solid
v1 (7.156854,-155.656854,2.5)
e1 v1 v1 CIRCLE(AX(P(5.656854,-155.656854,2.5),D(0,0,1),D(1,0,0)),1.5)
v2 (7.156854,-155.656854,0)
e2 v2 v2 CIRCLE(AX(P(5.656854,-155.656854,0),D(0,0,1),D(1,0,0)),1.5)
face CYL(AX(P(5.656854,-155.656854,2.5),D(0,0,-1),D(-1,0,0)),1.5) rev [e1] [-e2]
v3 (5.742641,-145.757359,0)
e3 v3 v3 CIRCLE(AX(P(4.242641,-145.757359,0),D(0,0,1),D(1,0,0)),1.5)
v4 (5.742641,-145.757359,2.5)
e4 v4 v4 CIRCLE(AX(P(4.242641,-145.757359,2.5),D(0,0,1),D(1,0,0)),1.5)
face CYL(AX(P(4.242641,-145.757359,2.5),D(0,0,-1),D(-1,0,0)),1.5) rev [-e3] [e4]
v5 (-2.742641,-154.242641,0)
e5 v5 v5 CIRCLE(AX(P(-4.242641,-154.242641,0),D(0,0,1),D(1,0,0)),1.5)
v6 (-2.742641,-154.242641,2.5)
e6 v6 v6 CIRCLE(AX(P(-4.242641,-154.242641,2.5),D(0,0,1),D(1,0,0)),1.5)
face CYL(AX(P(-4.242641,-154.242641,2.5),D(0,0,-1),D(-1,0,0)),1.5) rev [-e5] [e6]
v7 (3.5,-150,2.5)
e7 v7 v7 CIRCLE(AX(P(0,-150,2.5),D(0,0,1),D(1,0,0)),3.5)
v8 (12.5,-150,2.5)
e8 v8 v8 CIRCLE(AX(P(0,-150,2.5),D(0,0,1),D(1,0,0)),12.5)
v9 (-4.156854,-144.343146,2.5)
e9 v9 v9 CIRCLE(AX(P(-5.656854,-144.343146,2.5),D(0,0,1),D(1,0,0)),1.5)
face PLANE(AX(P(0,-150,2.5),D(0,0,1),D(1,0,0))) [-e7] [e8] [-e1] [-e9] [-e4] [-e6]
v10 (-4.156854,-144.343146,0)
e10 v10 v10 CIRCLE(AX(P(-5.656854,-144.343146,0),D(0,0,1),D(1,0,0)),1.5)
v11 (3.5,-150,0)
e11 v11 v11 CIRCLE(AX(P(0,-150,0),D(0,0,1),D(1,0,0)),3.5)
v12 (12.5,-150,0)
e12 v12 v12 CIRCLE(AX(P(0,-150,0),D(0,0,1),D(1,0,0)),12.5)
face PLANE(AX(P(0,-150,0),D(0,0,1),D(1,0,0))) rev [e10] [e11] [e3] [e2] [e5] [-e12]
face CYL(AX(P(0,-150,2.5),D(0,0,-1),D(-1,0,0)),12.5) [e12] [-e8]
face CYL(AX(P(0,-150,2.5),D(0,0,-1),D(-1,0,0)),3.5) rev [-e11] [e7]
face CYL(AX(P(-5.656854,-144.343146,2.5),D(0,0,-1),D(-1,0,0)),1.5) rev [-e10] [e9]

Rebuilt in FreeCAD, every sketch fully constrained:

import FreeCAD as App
import Part
import Sketcher
Q = App.Units.Quantity

doc = App.newDocument("Part")
body = doc.addObject("PartDesign::Body", "Body")

sketch1 = body.newObject("Sketcher::SketchObject", "Sketch")
sketch1.AttachmentSupport = (doc.getObject("XY_Plane"), [""])
sketch1.MapMode = "FlatFace"
sketch1.addGeometry([
    Part.Circle(App.Vector(0, -150, 0), App.Vector(0, 0, 1), 12.5),
    Part.Circle(App.Vector(-4.242641, -154.242641, 0), App.Vector(0, 0, 1), 1.5),
    Part.Circle(App.Vector(5.656854, -155.656854, 0), App.Vector(0, 0, 1), 1.5),
    Part.Circle(App.Vector(-5.656854, -144.343146, 0), App.Vector(0, 0, 1), 1.5),
    Part.Circle(App.Vector(0, -150, 0), App.Vector(0, 0, 1), 3.5),
    Part.Circle(App.Vector(4.242641, -145.757359, 0), App.Vector(0, 0, 1), 1.5),
], False)
sketch1.addConstraint([
    Sketcher.Constraint("Coincident", 4, 3, 0, 3),
    Sketcher.Constraint("Equal", 1, 2),
    Sketcher.Constraint("Equal", 2, 3),
    Sketcher.Constraint("Equal", 3, 5),
    Sketcher.Constraint("PointOnObject", 0, 3, -2),
    Sketcher.Constraint("Diameter", 0, Q("25 mm")),
    Sketcher.Constraint("Diameter", 1, Q("3 mm")),
    Sketcher.Constraint("Diameter", 4, Q("7 mm")),
    Sketcher.Constraint("DistanceY", 0, 3, -1, 1, Q("150 mm")),
    Sketcher.Constraint("DistanceX", 1, 3, -1, 1, Q("4.242641 mm")),
    Sketcher.Constraint("DistanceY", 1, 3, -1, 1, Q("154.242641 mm")),
    Sketcher.Constraint("DistanceX", -1, 1, 5, 3, Q("4.242641 mm")),
    Sketcher.Constraint("DistanceY", 5, 3, -1, 1, Q("145.757359 mm")),
    Sketcher.Constraint("DistanceX", 3, 3, 2, 3, Q("11.313708 mm")),
    Sketcher.Constraint("DistanceY", 2, 3, 3, 3, Q("11.313708 mm")),
    Sketcher.Constraint("DistanceX", -1, 1, 2, 3, Q("5.656854 mm")),
    Sketcher.Constraint("DistanceY", 2, 3, -1, 1, Q("155.656854 mm")),
])
pad1 = body.newObject("PartDesign::Pad", "Pad")
pad1.Profile = sketch1
pad1.Length = 2.5

doc.recompute()
